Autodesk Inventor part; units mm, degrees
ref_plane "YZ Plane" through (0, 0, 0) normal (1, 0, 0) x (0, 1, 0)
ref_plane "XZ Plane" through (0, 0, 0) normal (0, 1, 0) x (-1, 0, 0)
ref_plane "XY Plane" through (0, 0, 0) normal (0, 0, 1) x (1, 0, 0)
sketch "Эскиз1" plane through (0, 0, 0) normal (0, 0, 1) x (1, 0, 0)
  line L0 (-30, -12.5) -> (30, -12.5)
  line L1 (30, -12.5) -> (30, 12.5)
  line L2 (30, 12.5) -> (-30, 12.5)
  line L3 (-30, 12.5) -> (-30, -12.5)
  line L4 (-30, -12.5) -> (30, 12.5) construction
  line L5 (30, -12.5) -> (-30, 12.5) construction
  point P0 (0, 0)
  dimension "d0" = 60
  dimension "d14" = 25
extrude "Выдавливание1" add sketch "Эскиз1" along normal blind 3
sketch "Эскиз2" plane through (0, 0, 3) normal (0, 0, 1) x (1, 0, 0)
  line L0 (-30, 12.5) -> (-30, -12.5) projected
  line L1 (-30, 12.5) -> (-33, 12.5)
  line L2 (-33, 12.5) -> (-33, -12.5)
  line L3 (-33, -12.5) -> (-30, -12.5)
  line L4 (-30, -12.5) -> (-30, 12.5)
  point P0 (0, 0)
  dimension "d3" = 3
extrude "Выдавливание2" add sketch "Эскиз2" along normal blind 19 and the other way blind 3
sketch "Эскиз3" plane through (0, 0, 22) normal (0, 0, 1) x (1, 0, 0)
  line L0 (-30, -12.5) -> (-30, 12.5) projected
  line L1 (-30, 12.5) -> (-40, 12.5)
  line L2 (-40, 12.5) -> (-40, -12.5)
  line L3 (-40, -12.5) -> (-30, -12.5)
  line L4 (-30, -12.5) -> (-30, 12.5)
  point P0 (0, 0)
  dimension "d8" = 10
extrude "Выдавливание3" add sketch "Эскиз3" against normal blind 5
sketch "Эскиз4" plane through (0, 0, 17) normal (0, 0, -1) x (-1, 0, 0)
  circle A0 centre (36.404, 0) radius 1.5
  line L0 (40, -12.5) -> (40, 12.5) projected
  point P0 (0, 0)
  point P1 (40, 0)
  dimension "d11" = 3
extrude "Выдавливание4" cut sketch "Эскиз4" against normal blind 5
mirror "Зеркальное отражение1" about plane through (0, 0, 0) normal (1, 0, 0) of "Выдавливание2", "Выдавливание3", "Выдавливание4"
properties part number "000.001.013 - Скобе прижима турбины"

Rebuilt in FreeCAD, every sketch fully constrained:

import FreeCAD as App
import Part
import Sketcher

V = App.Vector

doc = App.newDocument("Part")
params = doc.addObject("Spreadsheet::Sheet", "Params")
for row, (alias, value) in enumerate([
    ("sketch1_width", "60 mm"),
    ("sketch1_height", "25 mm"),
    ("pad1_length", "3 mm"),
    ("sketch2_width", "3 mm"),
    ("sketch2_height", "25 mm"),
    ("pad2_length", "19 mm"),
    ("pad2_length2", "3 mm"),
    ("sketch3_width", "10 mm"),
    ("sketch3_height", "25 mm"),
    ("pad3_length", "5 mm"),
    ("sketch4_diameter", "3 mm"),
    ("pocket1_length", "5 mm"),
], start=1):
    params.set(f"A{row}", alias)
    params.set(f"B{row}", "=" + value)
    params.setAlias(f"B{row}", alias)

body = doc.addObject("PartDesign::Body", "Body")

# Sketch on XY plane
sketch1 = doc.addObject("Sketcher::SketchObject", "Sketch")
body.addObject(sketch1)
sketch1.AttachmentSupport = (doc.XY_Plane, [""])
sketch1.MapMode = "FlatFace"
sketch1.addGeometry(Part.LineSegment(V(-30, 12, 0), V(-30, -12, 0)), False)
sketch1.addGeometry(Part.LineSegment(V(-30, -12, 0), V(30, -12, 0)), False)
sketch1.addGeometry(Part.LineSegment(V(30, -12, 0), V(30, 12, 0)), False)
sketch1.addGeometry(Part.LineSegment(V(30, 12, 0), V(-30, 12, 0)), False)
sketch1.addConstraint(Sketcher.Constraint("Coincident", 0, 2, 1, 1))
sketch1.addConstraint(Sketcher.Constraint("Coincident", 1, 2, 2, 1))
sketch1.addConstraint(Sketcher.Constraint("Coincident", 2, 2, 3, 1))
sketch1.addConstraint(Sketcher.Constraint("Coincident", 3, 2, 0, 1))
sketch1.addConstraint(Sketcher.Constraint("Vertical", 0))
sketch1.addConstraint(Sketcher.Constraint("Horizontal", 1))
sketch1.addConstraint(Sketcher.Constraint("Vertical", 2))
sketch1.addConstraint(Sketcher.Constraint("Horizontal", 3))
sketch1.addConstraint(Sketcher.Constraint("Symmetric", 0, 2, 2, 2, -1, 1))
sketch1.addConstraint(Sketcher.Constraint("DistanceX", 1, 1, 1, 2, 60.0))
sketch1.addConstraint(Sketcher.Constraint("DistanceY", 0, 2, 0, 1, 25.0))
sketch1.setExpression("Constraints[9]", "Params.sketch1_width")
sketch1.setExpression("Constraints[10]", "Params.sketch1_height")
pad1 = doc.addObject("PartDesign::Pad", "Pad")
body.addObject(pad1)
pad1.Profile = sketch1
pad1.setExpression("Length", "Params.pad1_length")

# Sketch on XY plane
sketch2 = doc.addObject("Sketcher::SketchObject", "Sketch001")
body.addObject(sketch2)
sketch2.AttachmentSupport = (doc.XY_Plane, [""])
sketch2.MapMode = "FlatFace"
sketch2.AttachmentOffset = App.Placement(V(0, 0, 3), App.Rotation())
sketch2.addGeometry(Part.LineSegment(V(-30, -12.5, 0), V(-30, 12.5, 0)), False)
sketch2.addGeometry(Part.LineSegment(V(-30, 12.5, 0), V(-33, 12.5, 0)), False)
sketch2.addGeometry(Part.LineSegment(V(-33, 12.5, 0), V(-33, -12.5, 0)), False)
sketch2.addGeometry(Part.LineSegment(V(-33, -12.5, 0), V(-30, -12.5, 0)), False)
sketch2.addConstraint(Sketcher.Constraint("Coincident", 0, 2, 1, 1))
sketch2.addConstraint(Sketcher.Constraint("Coincident", 1, 2, 2, 1))
sketch2.addConstraint(Sketcher.Constraint("Coincident", 2, 2, 3, 1))
sketch2.addConstraint(Sketcher.Constraint("Coincident", 3, 2, 0, 1))
sketch2.addConstraint(Sketcher.Constraint("Vertical", 0))
sketch2.addConstraint(Sketcher.Constraint("Horizontal", 1))
sketch2.addConstraint(Sketcher.Constraint("Vertical", 2))
sketch2.addConstraint(Sketcher.Constraint("Horizontal", 3))
sketch2.addConstraint(Sketcher.Constraint("DistanceX", 1, 2, 1, 1, 3.0))
sketch2.addConstraint(Sketcher.Constraint("DistanceY", 0, 1, 0, 2, 25.0))
sketch2.addConstraint(Sketcher.Constraint("DistanceX", 0, 2, -1, 1, 30.0))
sketch2.addConstraint(Sketcher.Constraint("DistanceY", -1, 1, 0, 2, 12.5))
sketch2.setExpression("Constraints[8]", "Params.sketch2_width")
sketch2.setExpression("Constraints[9]", "Params.sketch2_height")
pad2 = doc.addObject("PartDesign::Pad", "Pad001")
body.addObject(pad2)
pad2.Profile = sketch2
pad2.Type = "TwoLengths"
pad2.setExpression("Length", "Params.pad2_length")
pad2.setExpression("Length2", "Params.pad2_length2")

# Sketch on XY plane
sketch3 = doc.addObject("Sketcher::SketchObject", "Sketch002")
body.addObject(sketch3)
sketch3.AttachmentSupport = (doc.XY_Plane, [""])
sketch3.MapMode = "FlatFace"
sketch3.AttachmentOffset = App.Placement(V(0, 0, 22), App.Rotation())
sketch3.addGeometry(Part.LineSegment(V(-40, -12, 0), V(-30, -12, 0)), False)
sketch3.addGeometry(Part.LineSegment(V(-30, -12, 0), V(-30, 12, 0)), False)
sketch3.addGeometry(Part.LineSegment(V(-30, 12, 0), V(-40, 12, 0)), False)
sketch3.addGeometry(Part.LineSegment(V(-40, 12, 0), V(-40, -12, 0)), False)
sketch3.addConstraint(Sketcher.Constraint("Coincident", 0, 2, 1, 1))
sketch3.addConstraint(Sketcher.Constraint("Coincident", 1, 2, 2, 1))
sketch3.addConstraint(Sketcher.Constraint("Coincident", 2, 2, 3, 1))
sketch3.addConstraint(Sketcher.Constraint("Coincident", 3, 2, 0, 1))
sketch3.addConstraint(Sketcher.Constraint("Horizontal", 0))
sketch3.addConstraint(Sketcher.Constraint("Vertical", 1))
sketch3.addConstraint(Sketcher.Constraint("Horizontal", 2))
sketch3.addConstraint(Sketcher.Constraint("Vertical", 3))
sketch3.addConstraint(Sketcher.Constraint("DistanceX", 0, 1, 0, 2, 10.0))
sketch3.addConstraint(Sketcher.Constraint("DistanceY", 1, 1, 1, 2, 25.0))
sketch3.addConstraint(Sketcher.Constraint("DistanceX", 0, 2, -1, 1, 30.0))
sketch3.addConstraint(Sketcher.Constraint("DistanceY", 0, 2, -1, 1, 12.5))
sketch3.setExpression("Constraints[8]", "Params.sketch3_width")
sketch3.setExpression("Constraints[9]", "Params.sketch3_height")
pad3 = doc.addObject("PartDesign::Pad", "Pad002")
body.addObject(pad3)
pad3.Profile = sketch3
pad3.setExpression("Length", "Params.pad3_length")
pad3.Reversed = True

# Sketch on XY plane
sketch4 = doc.addObject("Sketcher::SketchObject", "Sketch003")
body.addObject(sketch4)
sketch4.AttachmentSupport = (doc.XY_Plane, [""])
sketch4.MapMode = "FlatFace"
sketch4.AttachmentOffset = App.Placement(V(0, 0, 17), App.Rotation())
sketch4.addGeometry(Part.Circle(V(-36.4, 0, 0), V(0, 0, 1), 1.5), False)
sketch4.addConstraint(Sketcher.Constraint("PointOnObject", 0, 3, -1))
sketch4.addConstraint(Sketcher.Constraint("Diameter", 0, 3.0))
sketch4.addConstraint(Sketcher.Constraint("DistanceX", 0, 3, -1, 1, 36.404))
sketch4.setExpression("Constraints[1]", "Params.sketch4_diameter")
pocket1 = doc.addObject("PartDesign::Pocket", "Pocket")
body.addObject(pocket1)
pocket1.Profile = sketch4
pocket1.setExpression("Length", "Params.pocket1_length")
pocket1.Reversed = True
doc.recompute()

mirrored = doc.addObject("PartDesign::Mirrored", "Mirrored")
body.addObject(mirrored)
mirrored.Originals = [pad2, pad3, pocket1]
mirrored.MirrorPlane = (doc.YZ_Plane, [""])
body.Tip = mirrored

doc.recompute()
